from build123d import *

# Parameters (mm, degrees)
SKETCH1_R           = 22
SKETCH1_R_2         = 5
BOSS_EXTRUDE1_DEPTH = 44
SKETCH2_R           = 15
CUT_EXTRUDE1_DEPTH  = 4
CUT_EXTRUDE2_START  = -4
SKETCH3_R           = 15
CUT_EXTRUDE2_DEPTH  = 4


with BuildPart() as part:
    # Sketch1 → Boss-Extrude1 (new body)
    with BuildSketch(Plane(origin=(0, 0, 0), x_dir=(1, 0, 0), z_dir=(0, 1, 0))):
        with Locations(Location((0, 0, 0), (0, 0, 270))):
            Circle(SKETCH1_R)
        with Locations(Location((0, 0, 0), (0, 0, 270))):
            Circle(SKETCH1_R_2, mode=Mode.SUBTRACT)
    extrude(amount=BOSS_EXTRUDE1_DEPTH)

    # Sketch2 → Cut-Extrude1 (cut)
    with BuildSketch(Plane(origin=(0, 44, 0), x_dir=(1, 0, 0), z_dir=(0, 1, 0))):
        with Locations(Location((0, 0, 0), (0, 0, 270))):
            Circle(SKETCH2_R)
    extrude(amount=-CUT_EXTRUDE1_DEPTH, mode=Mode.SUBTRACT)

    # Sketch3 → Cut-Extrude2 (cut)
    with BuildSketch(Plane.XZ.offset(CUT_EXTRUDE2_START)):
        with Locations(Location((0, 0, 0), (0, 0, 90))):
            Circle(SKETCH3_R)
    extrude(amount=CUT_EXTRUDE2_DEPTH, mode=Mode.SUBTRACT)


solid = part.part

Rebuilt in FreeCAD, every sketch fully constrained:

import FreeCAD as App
import Part
import Sketcher
from FreeCAD import Vector

doc = App.newDocument("Part")
body = doc.addObject("PartDesign::Body", "Body")

# Sketch on XZ plane
sketch1 = body.newObject("Sketcher::SketchObject", "Sketch")
sketch1.AttachmentSupport = (doc.getObject("XZ_Plane"), [""])
sketch1.MapMode = "FlatFace"
sketch1.addGeometry(Part.Circle(Vector(0, 0, 0), Vector(0, 0, 1), 22), False)
sketch1.addGeometry(Part.Circle(Vector(0, 0, 0), Vector(0, 0, 1), 5), False)
sketch1.addConstraint(Sketcher.Constraint("Coincident", 0, 3, -1, 1))
sketch1.addConstraint(Sketcher.Constraint("Coincident", 1, 3, -1, 1))
sketch1.addConstraint(Sketcher.Constraint("Diameter", 0, 44.0))
sketch1.addConstraint(Sketcher.Constraint("Diameter", 1, 10.0))
pad1 = body.newObject("PartDesign::Pad", "Pad")
pad1.Profile = sketch1
pad1.Length = 44
pad1.Reversed = True

# Sketch on XZ plane
sketch2 = body.newObject("Sketcher::SketchObject", "Sketch001")
sketch2.AttachmentSupport = (doc.getObject("XZ_Plane"), [""])
sketch2.MapMode = "FlatFace"
sketch2.AttachmentOffset = App.Placement(Vector(0, 0, -44), App.Rotation())
sketch2.addGeometry(Part.Circle(Vector(0, 0, 0), Vector(0, 0, 1), 15), False)
sketch2.addConstraint(Sketcher.Constraint("Coincident", 0, 3, -1, 1))
sketch2.addConstraint(Sketcher.Constraint("Diameter", 0, 30.0))
pocket1 = body.newObject("PartDesign::Pocket", "Pocket")
pocket1.Profile = sketch2
pocket1.Length = 4
pocket1.Reversed = True

# Sketch on XZ plane
sketch3 = body.newObject("Sketcher::SketchObject", "Sketch002")
sketch3.AttachmentSupport = (doc.getObject("XZ_Plane"), [""])
sketch3.MapMode = "FlatFace"
sketch3.AttachmentOffset = App.Placement(Vector(0, 0, -4), App.Rotation())
sketch3.addGeometry(Part.Circle(Vector(0, 0, 0), Vector(0, 0, 1), 15), False)
sketch3.addConstraint(Sketcher.Constraint("Coincident", 0, 3, -1, 1))
sketch3.addConstraint(Sketcher.Constraint("Diameter", 0, 30.0))
pocket2 = body.newObject("PartDesign::Pocket", "Pocket001")
pocket2.Profile = sketch3
pocket2.Length = 4
pocket2.Reversed = True

doc.recompute()
